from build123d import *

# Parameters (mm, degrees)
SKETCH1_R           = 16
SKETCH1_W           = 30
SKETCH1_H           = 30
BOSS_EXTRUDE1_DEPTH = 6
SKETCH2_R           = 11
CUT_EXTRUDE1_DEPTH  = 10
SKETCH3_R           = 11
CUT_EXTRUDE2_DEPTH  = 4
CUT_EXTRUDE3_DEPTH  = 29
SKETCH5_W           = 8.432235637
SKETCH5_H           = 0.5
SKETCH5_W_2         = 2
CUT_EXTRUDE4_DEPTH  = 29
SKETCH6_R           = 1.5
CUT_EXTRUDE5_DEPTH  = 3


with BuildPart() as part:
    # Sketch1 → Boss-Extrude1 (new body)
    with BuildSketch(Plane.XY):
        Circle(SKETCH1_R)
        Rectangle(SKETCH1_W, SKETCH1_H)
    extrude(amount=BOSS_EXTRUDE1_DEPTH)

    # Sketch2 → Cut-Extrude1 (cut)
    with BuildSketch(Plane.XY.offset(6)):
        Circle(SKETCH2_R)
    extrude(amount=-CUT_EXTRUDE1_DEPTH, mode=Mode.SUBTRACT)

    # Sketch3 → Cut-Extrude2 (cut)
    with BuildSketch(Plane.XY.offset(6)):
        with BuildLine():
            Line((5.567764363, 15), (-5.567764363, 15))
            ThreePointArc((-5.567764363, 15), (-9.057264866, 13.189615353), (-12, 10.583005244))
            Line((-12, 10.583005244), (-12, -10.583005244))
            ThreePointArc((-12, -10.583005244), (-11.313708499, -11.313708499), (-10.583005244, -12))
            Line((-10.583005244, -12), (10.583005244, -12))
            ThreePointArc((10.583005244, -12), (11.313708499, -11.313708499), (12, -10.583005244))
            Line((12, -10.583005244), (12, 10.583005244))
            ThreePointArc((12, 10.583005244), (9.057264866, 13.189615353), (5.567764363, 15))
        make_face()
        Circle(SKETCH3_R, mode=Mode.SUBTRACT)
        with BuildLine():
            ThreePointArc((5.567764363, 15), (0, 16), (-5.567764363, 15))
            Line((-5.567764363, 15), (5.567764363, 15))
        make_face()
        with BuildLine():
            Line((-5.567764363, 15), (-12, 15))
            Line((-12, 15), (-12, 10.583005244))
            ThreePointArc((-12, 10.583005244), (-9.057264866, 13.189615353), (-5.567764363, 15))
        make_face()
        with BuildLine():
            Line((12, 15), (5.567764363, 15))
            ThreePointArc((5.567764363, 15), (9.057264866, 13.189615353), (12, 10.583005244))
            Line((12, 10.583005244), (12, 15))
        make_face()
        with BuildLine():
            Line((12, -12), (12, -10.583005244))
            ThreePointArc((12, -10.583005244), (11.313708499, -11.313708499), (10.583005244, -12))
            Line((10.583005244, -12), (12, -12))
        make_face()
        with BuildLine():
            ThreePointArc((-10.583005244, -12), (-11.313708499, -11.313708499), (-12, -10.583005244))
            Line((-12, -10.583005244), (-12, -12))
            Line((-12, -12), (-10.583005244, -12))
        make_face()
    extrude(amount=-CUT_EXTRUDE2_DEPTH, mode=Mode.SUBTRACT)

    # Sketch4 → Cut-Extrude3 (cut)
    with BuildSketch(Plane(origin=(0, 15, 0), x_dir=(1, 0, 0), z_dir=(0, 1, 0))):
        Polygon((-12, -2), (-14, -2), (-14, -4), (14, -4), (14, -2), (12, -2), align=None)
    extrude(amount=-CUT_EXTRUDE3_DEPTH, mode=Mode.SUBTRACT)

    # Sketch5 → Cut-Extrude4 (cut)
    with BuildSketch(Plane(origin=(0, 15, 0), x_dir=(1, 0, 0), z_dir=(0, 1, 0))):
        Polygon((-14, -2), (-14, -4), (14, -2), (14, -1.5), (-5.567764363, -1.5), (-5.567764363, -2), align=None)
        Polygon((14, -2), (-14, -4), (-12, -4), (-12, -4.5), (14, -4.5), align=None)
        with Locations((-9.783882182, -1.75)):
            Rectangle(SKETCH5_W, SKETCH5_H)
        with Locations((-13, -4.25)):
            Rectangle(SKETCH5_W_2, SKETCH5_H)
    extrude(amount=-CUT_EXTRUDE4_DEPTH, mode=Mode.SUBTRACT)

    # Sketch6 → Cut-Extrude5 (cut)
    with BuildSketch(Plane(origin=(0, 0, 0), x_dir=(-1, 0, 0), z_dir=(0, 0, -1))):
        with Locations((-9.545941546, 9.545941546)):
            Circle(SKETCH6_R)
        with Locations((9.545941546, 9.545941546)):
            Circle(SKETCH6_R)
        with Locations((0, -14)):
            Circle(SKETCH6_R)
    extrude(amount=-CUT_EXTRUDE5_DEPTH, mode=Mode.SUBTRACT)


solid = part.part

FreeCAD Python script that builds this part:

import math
import FreeCAD as App
import Part
import Sketcher
from FreeCAD import Vector
Q = App.Units.Quantity

doc = App.newDocument("Part")
body = doc.addObject("PartDesign::Body", "Body")

# Sketch on XY plane
sketch1 = body.newObject("Sketcher::SketchObject", "Sketch")
sketch1.AttachmentSupport = (doc.getObject("XY_Plane"), [""])
sketch1.MapMode = "FlatFace"
sketch1.addGeometry([
    Part.ArcOfCircle(Part.Circle(Vector(0, 0, 0), Vector(0, 0, 1), 16), math.radians(-20), math.radians(20)),  # 0
    Part.LineSegment(Vector(15, 6, 0), Vector(15, 15, 0)),  # 1
    Part.LineSegment(Vector(15, 15, 0), Vector(6, 15, 0)),  # 2
    Part.ArcOfCircle(Part.Circle(Vector(0, 0, 0), Vector(0, 0, 1), 16), math.radians(70), math.radians(110)),  # 3
    Part.LineSegment(Vector(-6, 15, 0), Vector(-15, 15, 0)),  # 4
    Part.LineSegment(Vector(-15, 15, 0), Vector(-15, 6, 0)),  # 5
    Part.ArcOfCircle(Part.Circle(Vector(0, 0, 0), Vector(0, 0, 1), 16), math.radians(160), math.radians(200)),  # 6
    Part.LineSegment(Vector(-15, -6, 0), Vector(-15, -15, 0)),  # 7
    Part.LineSegment(Vector(-15, -15, 0), Vector(-6, -15, 0)),  # 8
    Part.ArcOfCircle(Part.Circle(Vector(0, 0, 0), Vector(0, 0, 1), 16), math.radians(-110), math.radians(-70)),  # 9
    Part.LineSegment(Vector(6, -15, 0), Vector(15, -15, 0)),  # 10
    Part.LineSegment(Vector(15, -15, 0), Vector(15, -6, 0)),  # 11
], False)
sketch1.addConstraint([
    Sketcher.Constraint("Coincident", 0, 2, 1, 1),
    Sketcher.Constraint("Coincident", 1, 2, 2, 1),
    Sketcher.Constraint("Coincident", 2, 2, 3, 1),
    Sketcher.Constraint("Coincident", 3, 2, 4, 1),
    Sketcher.Constraint("Coincident", 4, 2, 5, 1),
    Sketcher.Constraint("Coincident", 5, 2, 6, 1),
    Sketcher.Constraint("Coincident", 6, 2, 7, 1),
    Sketcher.Constraint("Coincident", 7, 2, 8, 1),
    Sketcher.Constraint("Coincident", 8, 2, 9, 1),
    Sketcher.Constraint("Coincident", 9, 2, 10, 1),
    Sketcher.Constraint("Coincident", 10, 2, 11, 1),
    Sketcher.Constraint("Coincident", 11, 2, 0, 1),
    Sketcher.Constraint("Vertical", 1),
    Sketcher.Constraint("Horizontal", 2),
    Sketcher.Constraint("Horizontal", 4),
    Sketcher.Constraint("Vertical", 5),
    Sketcher.Constraint("Vertical", 7),
    Sketcher.Constraint("Horizontal", 8),
    Sketcher.Constraint("Horizontal", 10),
    Sketcher.Constraint("Vertical", 11),
    Sketcher.Constraint("Coincident", 0, 3, -1, 1),
    Sketcher.Constraint("Coincident", 3, 3, -1, 1),
    Sketcher.Constraint("Coincident", 6, 3, -1, 1),
    Sketcher.Constraint("Coincident", 9, 3, -1, 1),
    Sketcher.Constraint("Equal", 0, 3),
    Sketcher.Constraint("Equal", 3, 6),
    Sketcher.Constraint("Equal", 6, 9),
    Sketcher.Constraint("Symmetric", 1, 2, 7, 2, -1, 1),
    Sketcher.Constraint("Symmetric", 4, 2, 10, 2, -1, 1),
    Sketcher.Constraint("Symmetric", 1, 2, 4, 2, -2),
    Sketcher.Constraint("Equal", 10, 1),
    Sketcher.Constraint("Radius", 0, Q("16 mm")),
    Sketcher.Constraint("DistanceX", -1, 1, 0, 2, Q("15 mm")),
])
pad1 = body.newObject("PartDesign::Pad", "Pad")
pad1.Profile = sketch1
pad1.Length = 6

# Sketch on XY plane
sketch2 = body.newObject("Sketcher::SketchObject", "Sketch001")
sketch2.AttachmentSupport = (doc.getObject("XY_Plane"), [""])
sketch2.MapMode = "FlatFace"
sketch2.AttachmentOffset = App.Placement(Vector(0, 0, 6), App.Rotation())
sketch2.addGeometry(Part.Circle(Vector(0, 0, 0), Vector(0, 0, 1), 11), False)
sketch2.addConstraint([
    Sketcher.Constraint("Coincident", 0, 3, -1, 1),
    Sketcher.Constraint("Diameter", 0, Q("22 mm")),
])
pocket1 = body.newObject("PartDesign::Pocket", "Pocket")
pocket1.Profile = sketch2
pocket1.Length = 10

# Sketch on XY plane
sketch3 = body.newObject("Sketcher::SketchObject", "Sketch002")
sketch3.AttachmentSupport = (doc.getObject("XY_Plane"), [""])
sketch3.MapMode = "FlatFace"
sketch3.AttachmentOffset = App.Placement(Vector(0, 0, 6), App.Rotation())
sketch3.addGeometry([
    Part.ArcOfCircle(Part.Circle(Vector(0, 0, 0), Vector(0, 0, 1), 16), math.radians(70), math.radians(110)),  # 0
    Part.LineSegment(Vector(-6, 15, 0), Vector(-12, 15, 0)),  # 1
    Part.LineSegment(Vector(-12, 15, 0), Vector(-12, -12, 0)),  # 2
    Part.LineSegment(Vector(-12, -12, 0), Vector(12, -12, 0)),  # 3
    Part.LineSegment(Vector(12, -12, 0), Vector(12, 15, 0)),  # 4
    Part.LineSegment(Vector(12, 15, 0), Vector(6, 15, 0)),  # 5
    Part.Circle(Vector(0, 0, 0), Vector(0, 0, 1), 11),  # 6
], False)
sketch3.addConstraint([
    Sketcher.Constraint("Coincident", 0, 2, 1, 1),
    Sketcher.Constraint("Coincident", 1, 2, 2, 1),
    Sketcher.Constraint("Coincident", 2, 2, 3, 1),
    Sketcher.Constraint("Coincident", 3, 2, 4, 1),
    Sketcher.Constraint("Coincident", 4, 2, 5, 1),
    Sketcher.Constraint("Coincident", 5, 2, 0, 1),
    Sketcher.Constraint("Horizontal", 1),
    Sketcher.Constraint("Vertical", 2),
    Sketcher.Constraint("Horizontal", 3),
    Sketcher.Constraint("Vertical", 4),
    Sketcher.Constraint("Horizontal", 5),
    Sketcher.Constraint("Coincident", 0, 3, -1, 1),
    Sketcher.Constraint("Coincident", 6, 3, -1, 1),
    Sketcher.Constraint("Symmetric", 1, 2, 4, 2, -2),
    Sketcher.Constraint("Diameter", 6, Q("22 mm")),
    Sketcher.Constraint("Radius", 0, Q("16 mm")),
    Sketcher.Constraint("DistanceX", 3, 1, 3, 2, Q("24 mm")),
    Sketcher.Constraint("DistanceY", 2, 2, 2, 1, Q("27 mm")),
    Sketcher.Constraint("DistanceY", -1, 1, 0, 2, Q("15 mm")),
])
pocket2 = body.newObject("PartDesign::Pocket", "Pocket001")
pocket2.Profile = sketch3
pocket2.Length = 4

# Sketch on XZ plane
sketch4 = body.newObject("Sketcher::SketchObject", "Sketch003")
sketch4.AttachmentSupport = (doc.getObject("XZ_Plane"), [""])
sketch4.MapMode = "FlatFace"
sketch4.AttachmentOffset = App.Placement(Vector(0, 0, -15), App.Rotation())
sketch4.addGeometry([
    Part.LineSegment(Vector(-14, 2, 0), Vector(-14, 4, 0)),
    Part.LineSegment(Vector(-14, 4, 0), Vector(14, 4, 0)),
    Part.LineSegment(Vector(14, 4, 0), Vector(14, 2, 0)),
    Part.LineSegment(Vector(14, 2, 0), Vector(-14, 2, 0)),
], False)
sketch4.addConstraint([
    Sketcher.Constraint("Coincident", 0, 2, 1, 1),
    Sketcher.Constraint("Coincident", 1, 2, 2, 1),
    Sketcher.Constraint("Coincident", 2, 2, 3, 1),
    Sketcher.Constraint("Coincident", 3, 2, 0, 1),
    Sketcher.Constraint("Vertical", 0),
    Sketcher.Constraint("Horizontal", 1),
    Sketcher.Constraint("Vertical", 2),
    Sketcher.Constraint("Horizontal", 3),
    Sketcher.Constraint("DistanceX", 1, 1, 1, 2, Q("28 mm")),
    Sketcher.Constraint("DistanceY", 0, 1, 0, 2, Q("2 mm")),
    Sketcher.Constraint("DistanceX", 0, 2, -1, 1, Q("14 mm")),
    Sketcher.Constraint("DistanceY", -1, 1, 0, 2, Q("4 mm")),
])
pocket3 = body.newObject("PartDesign::Pocket", "Pocket002")
pocket3.Profile = sketch4
pocket3.Length = 29
pocket3.Reversed = True

# Sketch on XZ plane
sketch5 = body.newObject("Sketcher::SketchObject", "Sketch004")
sketch5.AttachmentSupport = (doc.getObject("XZ_Plane"), [""])
sketch5.MapMode = "FlatFace"
sketch5.AttachmentOffset = App.Placement(Vector(0, 0, -15), App.Rotation())
sketch5.addGeometry([
    Part.LineSegment(Vector(-14, 2, 0), Vector(-14, 4.5, 0)),  # 0
    Part.LineSegment(Vector(-14, 4.5, 0), Vector(14, 4.5, 0)),  # 1
    Part.LineSegment(Vector(14, 4.5, 0), Vector(14, 1.5, 0)),  # 2
    Part.LineSegment(Vector(14, 1.5, 0), Vector(-14, 1.5, 0)),  # 3
    Part.LineSegment(Vector(-14, 1.5, 0), Vector(-14, 2, 0)),  # 4
], False)
sketch5.addConstraint([
    Sketcher.Constraint("Coincident", 0, 2, 1, 1),
    Sketcher.Constraint("Coincident", 1, 2, 2, 1),
    Sketcher.Constraint("Coincident", 2, 2, 3, 1),
    Sketcher.Constraint("Coincident", 3, 2, 4, 1),
    Sketcher.Constraint("Coincident", 4, 2, 0, 1),
    Sketcher.Constraint("Vertical", 0),
    Sketcher.Constraint("Horizontal", 1),
    Sketcher.Constraint("Vertical", 2),
    Sketcher.Constraint("Horizontal", 3),
    Sketcher.Constraint("Vertical", 4),
    Sketcher.Constraint("DistanceX", 1, 1, 1, 2, Q("28 mm")),
    Sketcher.Constraint("DistanceY", 2, 2, 2, 1, Q("3 mm")),
    Sketcher.Constraint("DistanceY", 0, 1, 0, 2, Q("2.5 mm")),
    Sketcher.Constraint("DistanceX", 0, 2, -1, 1, Q("14 mm")),
    Sketcher.Constraint("DistanceY", -1, 1, 4, 2, Q("2 mm")),
])
pocket4 = body.newObject("PartDesign::Pocket", "Pocket003")
pocket4.Profile = sketch5
pocket4.Length = 29
pocket4.Reversed = True

# Sketch on XY plane
sketch6 = body.newObject("Sketcher::SketchObject", "Sketch005")
sketch6.AttachmentSupport = (doc.getObject("XY_Plane"), [""])
sketch6.MapMode = "FlatFace"
sketch6.addGeometry([
    Part.Circle(Vector(9.5, 9.5, 0), Vector(0, 0, 1), 1.5),
    Part.Circle(Vector(-9.5, 9.5, 0), Vector(0, 0, 1), 1.5),
    Part.Circle(Vector(0, -14, 0), Vector(0, 0, 1), 1.5),
], False)
sketch6.addConstraint([
    Sketcher.Constraint("Equal", 0, 1),
    Sketcher.Constraint("Equal", 1, 2),
    Sketcher.Constraint("Symmetric", 0, 3, 1, 3, -2),
    Sketcher.Constraint("PointOnObject", 2, 3, -2),
    Sketcher.Constraint("Diameter", 0, Q("3 mm")),
    Sketcher.Constraint("DistanceY", 2, 3, -1, 1, Q("14 mm")),
    Sketcher.Constraint("DistanceX", -1, 1, 0, 3, Q("9.545942 mm")),
    Sketcher.Constraint("DistanceY", -1, 1, 0, 3, Q("9.545942 mm")),
])
pocket5 = body.newObject("PartDesign::Pocket", "Pocket004")
pocket5.Profile = sketch6
pocket5.Length = 3
pocket5.Reversed = True

doc.recompute()
